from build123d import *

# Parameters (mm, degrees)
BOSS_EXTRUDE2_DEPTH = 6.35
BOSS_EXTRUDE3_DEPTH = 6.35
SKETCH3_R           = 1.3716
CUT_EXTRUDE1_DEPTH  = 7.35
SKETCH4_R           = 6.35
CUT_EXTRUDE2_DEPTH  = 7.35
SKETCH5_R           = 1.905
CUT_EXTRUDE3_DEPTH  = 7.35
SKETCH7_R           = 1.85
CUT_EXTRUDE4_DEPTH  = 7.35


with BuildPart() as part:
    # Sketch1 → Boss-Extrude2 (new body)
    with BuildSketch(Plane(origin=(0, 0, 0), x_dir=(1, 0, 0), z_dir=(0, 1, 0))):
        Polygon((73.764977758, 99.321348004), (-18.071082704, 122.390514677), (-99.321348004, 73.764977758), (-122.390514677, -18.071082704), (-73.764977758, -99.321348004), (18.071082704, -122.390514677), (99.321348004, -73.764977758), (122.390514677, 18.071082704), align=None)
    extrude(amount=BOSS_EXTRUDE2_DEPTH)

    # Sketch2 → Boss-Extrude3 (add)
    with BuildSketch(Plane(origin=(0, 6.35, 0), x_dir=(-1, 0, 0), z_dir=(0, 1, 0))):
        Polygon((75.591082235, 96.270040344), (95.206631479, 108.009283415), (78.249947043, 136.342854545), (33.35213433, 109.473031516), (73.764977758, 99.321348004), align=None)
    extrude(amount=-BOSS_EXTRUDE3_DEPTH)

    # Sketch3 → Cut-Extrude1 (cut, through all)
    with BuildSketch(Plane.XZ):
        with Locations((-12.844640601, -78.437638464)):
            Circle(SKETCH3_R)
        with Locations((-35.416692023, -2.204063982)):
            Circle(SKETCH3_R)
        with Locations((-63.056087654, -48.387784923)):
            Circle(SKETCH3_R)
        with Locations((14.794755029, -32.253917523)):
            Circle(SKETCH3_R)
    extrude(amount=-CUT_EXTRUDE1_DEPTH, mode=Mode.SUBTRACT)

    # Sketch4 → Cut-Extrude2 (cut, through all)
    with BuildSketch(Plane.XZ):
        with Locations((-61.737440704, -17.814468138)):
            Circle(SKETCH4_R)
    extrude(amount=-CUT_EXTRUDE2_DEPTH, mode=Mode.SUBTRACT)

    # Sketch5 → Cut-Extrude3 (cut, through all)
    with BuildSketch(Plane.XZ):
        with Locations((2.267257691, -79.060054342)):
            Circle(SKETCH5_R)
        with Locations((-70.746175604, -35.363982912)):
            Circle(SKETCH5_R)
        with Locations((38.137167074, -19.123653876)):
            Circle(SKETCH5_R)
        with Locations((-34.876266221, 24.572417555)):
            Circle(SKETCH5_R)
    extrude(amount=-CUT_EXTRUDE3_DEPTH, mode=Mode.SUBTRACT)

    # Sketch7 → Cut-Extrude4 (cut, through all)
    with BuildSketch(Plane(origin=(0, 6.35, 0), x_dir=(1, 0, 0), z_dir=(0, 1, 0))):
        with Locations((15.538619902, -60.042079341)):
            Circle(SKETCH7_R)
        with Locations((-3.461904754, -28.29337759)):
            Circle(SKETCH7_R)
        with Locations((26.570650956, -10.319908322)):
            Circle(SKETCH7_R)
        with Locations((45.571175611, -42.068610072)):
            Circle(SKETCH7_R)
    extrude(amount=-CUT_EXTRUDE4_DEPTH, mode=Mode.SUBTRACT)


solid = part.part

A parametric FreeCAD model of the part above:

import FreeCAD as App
import Part
import Sketcher

V = App.Vector
Q = App.Units.Quantity


def add_polygon(sketch, points):
    """Adds a closed chain of lines whose ends are joined by coincident constraints."""
    first, n = sketch.GeometryCount, len(points)
    for a, b in zip(points, points[1:] + points[:1]):
        sketch.addGeometry(Part.LineSegment(App.Vector(*a, 0), App.Vector(*b, 0)), False)
    for i in range(n):
        sketch.addConstraint(Sketcher.Constraint("Coincident", first + i, 2, first + (i + 1) % n, 1))

doc = App.newDocument("Part")
body = doc.addObject("PartDesign::Body", "Body")

# Sketch on XZ plane
sketch1 = doc.addObject("Sketcher::SketchObject", "Sketch")
body.addObject(sketch1)
sketch1.AttachmentSupport = (doc.XZ_Plane, [""])
sketch1.MapMode = "FlatFace"
add_polygon(sketch1, [(74, -99), (-18, -122), (-99, -74), (-122, 18), (-74, 99), (18, 122), (99, 74), (122, -18)])  # lines 0-7
sketch1.addConstraint(Sketcher.Constraint("Symmetric", 0, 2, 4, 2, -1, 1))
sketch1.addConstraint(Sketcher.Constraint("Symmetric", 1, 2, 5, 2, -1, 1))
sketch1.addConstraint(Sketcher.Constraint("Symmetric", 2, 2, 6, 2, -1, 1))
sketch1.addConstraint(Sketcher.Constraint("Symmetric", 3, 2, 7, 2, -1, 1))
sketch1.addConstraint(Sketcher.Constraint("Perpendicular", 0, 2))
sketch1.addConstraint(Sketcher.Constraint("Perpendicular", 1, 3))
sketch1.addConstraint(Sketcher.Constraint("Equal", 0, 1))
sketch1.addConstraint(Sketcher.Constraint("Equal", 1, 2))
sketch1.addConstraint(Sketcher.Constraint("Equal", 2, 3))
sketch1.addConstraint(Sketcher.Constraint("Distance", 0, Q("94.68922 mm")))
sketch1.addConstraint(Sketcher.Constraint("DistanceX", 1, 2, -1, 1, Q("99.321348 mm")))
sketch1.addConstraint(Sketcher.Constraint("DistanceY", 1, 2, 2, 2, Q("91.83606 mm")))
pad1 = doc.addObject("PartDesign::Pad", "Pad")
body.addObject(pad1)
pad1.Profile = sketch1
pad1.Length = Q("0.25 in")
pad1.Reversed = True

# Sketch on XZ plane
sketch2 = doc.addObject("Sketcher::SketchObject", "Sketch001")
body.addObject(sketch2)
sketch2.AttachmentSupport = (doc.XZ_Plane, [""])
sketch2.MapMode = "FlatFace"
sketch2.AttachmentOffset = App.Placement(V(0, 0, -0.25 * 25.4), App.Rotation())
add_polygon(sketch2, [(-75.6, 96.3), (-95.2, 108), (-78.2, 136.3), (-33.4, 109.5), (-73.8, 99.3)])  # lines 0-4
sketch2.addConstraint(Sketcher.Constraint("Perpendicular", 0, 1))
sketch2.addConstraint(Sketcher.Constraint("Perpendicular", 1, 2))
sketch2.addConstraint(Sketcher.Constraint("Perpendicular", 2, 4))
sketch2.addConstraint(Sketcher.Constraint("Distance", 0, Q("0.9 in")))
sketch2.addConstraint(Sketcher.Constraint("Distance", 1, Q("1.3 in")))
sketch2.addConstraint(Sketcher.Constraint("Distance", 2, Q("2.06 in")))
sketch2.addConstraint(Sketcher.Constraint("Distance", 4, Q("0.14 in")))
sketch2.addConstraint(Sketcher.Constraint("DistanceX", 0, 2, -1, 1, Q("95.206631 mm")))
sketch2.addConstraint(Sketcher.Constraint("DistanceY", -1, 1, 2, 2, Q("109.473032 mm")))
sketch2.addConstraint(Sketcher.Constraint("DistanceY", -1, 1, 3, 2, Q("99.321348 mm")))
pad2 = doc.addObject("PartDesign::Pad", "Pad001")
body.addObject(pad2)
pad2.Profile = sketch2
pad2.Length = Q("0.25 in")

# Sketch on XZ plane
sketch3 = doc.addObject("Sketcher::SketchObject", "Sketch002")
body.addObject(sketch3)
sketch3.AttachmentSupport = (doc.XZ_Plane, [""])
sketch3.MapMode = "FlatFace"
sketch3.addGeometry(Part.Circle(V(-12.8, -78.4, 0), V(0, 0, 1), 1.4), False)
sketch3.addGeometry(Part.Circle(V(-35.4, -2.2, 0), V(0, 0, 1), 1.4), False)
sketch3.addGeometry(Part.Circle(V(-63.1, -48.4, 0), V(0, 0, 1), 1.4), False)
sketch3.addGeometry(Part.Circle(V(14.8, -32.3, 0), V(0, 0, 1), 1.4), False)
sketch3.addConstraint(Sketcher.Constraint("Equal", 0, 1))
sketch3.addConstraint(Sketcher.Constraint("Equal", 1, 2))
sketch3.addConstraint(Sketcher.Constraint("Equal", 2, 3))
sketch3.addConstraint(Sketcher.Constraint("Diameter", 0, Q("0.108 in")))
sketch3.addConstraint(Sketcher.Constraint("DistanceX", 0, 3, -1, 1, Q("12.844641 mm")))
sketch3.addConstraint(Sketcher.Constraint("DistanceY", 0, 3, -1, 1, Q("78.437638 mm")))
sketch3.addConstraint(Sketcher.Constraint("DistanceX", 1, 3, 0, 3, Q("22.572051 mm")))
sketch3.addConstraint(Sketcher.Constraint("DistanceY", 2, 3, 1, 3, Q("46.183721 mm")))
sketch3.addConstraint(Sketcher.Constraint("DistanceY", 0, 3, 3, 3, Q("46.183721 mm")))
sketch3.addConstraint(Sketcher.Constraint("DistanceY", 1, 3, -1, 1, Q("2.204064 mm")))
sketch3.addConstraint(Sketcher.Constraint("DistanceX", 2, 3, -1, 1, Q("63.056088 mm")))
sketch3.addConstraint(Sketcher.Constraint("DistanceX", -1, 1, 3, 3, Q("14.794755 mm")))
pocket1 = doc.addObject("PartDesign::Pocket", "Pocket")
body.addObject(pocket1)
pocket1.Profile = sketch3
pocket1.Type = "ThroughAll"

# Sketch on XZ plane
sketch4 = doc.addObject("Sketcher::SketchObject", "Sketch003")
body.addObject(sketch4)
sketch4.AttachmentSupport = (doc.XZ_Plane, [""])
sketch4.MapMode = "FlatFace"
sketch4.addGeometry(Part.Circle(V(-62, -18, 0), V(0, 0, 1), 6), False)
sketch4.addConstraint(Sketcher.Constraint("Diameter", 0, Q("0.5 in")))
sketch4.addConstraint(Sketcher.Constraint("DistanceX", 0, 3, -1, 1, Q("61.737441 mm")))
sketch4.addConstraint(Sketcher.Constraint("DistanceY", 0, 3, -1, 1, Q("17.814468 mm")))
pocket2 = doc.addObject("PartDesign::Pocket", "Pocket001")
body.addObject(pocket2)
pocket2.Profile = sketch4
pocket2.Type = "ThroughAll"

# Sketch on XZ plane
sketch5 = doc.addObject("Sketcher::SketchObject", "Sketch004")
body.addObject(sketch5)
sketch5.AttachmentSupport = (doc.XZ_Plane, [""])
sketch5.MapMode = "FlatFace"
sketch5.addGeometry(Part.Circle(V(2.3, -79.1, 0), V(0, 0, 1), 1.9), False)
sketch5.addGeometry(Part.Circle(V(-70.7, -35.4, 0), V(0, 0, 1), 1.9), False)
sketch5.addGeometry(Part.Circle(V(38.1, -19.1, 0), V(0, 0, 1), 1.9), False)
sketch5.addGeometry(Part.Circle(V(-34.9, 24.6, 0), V(0, 0, 1), 1.9), False)
sketch5.addConstraint(Sketcher.Constraint("Equal", 0, 1))
sketch5.addConstraint(Sketcher.Constraint("Equal", 1, 2))
sketch5.addConstraint(Sketcher.Constraint("Equal", 2, 3))
sketch5.addConstraint(Sketcher.Constraint("Diameter", 0, Q("0.15 in")))
sketch5.addConstraint(Sketcher.Constraint("DistanceY", 0, 3, 2, 3, Q("59.9364 mm")))
sketch5.addConstraint(Sketcher.Constraint("DistanceY", 1, 3, 3, 3, Q("59.9364 mm")))
sketch5.addConstraint(Sketcher.Constraint("DistanceY", 0, 3, 1, 3, Q("43.696071 mm")))
sketch5.addConstraint(Sketcher.Constraint("DistanceX", 0, 3, 2, 3, Q("35.869909 mm")))
sketch5.addConstraint(Sketcher.Constraint("DistanceX", 1, 3, 3, 3, Q("35.869909 mm")))
sketch5.addConstraint(Sketcher.Constraint("DistanceX", -1, 1, 0, 3, Q("2.267258 mm")))
sketch5.addConstraint(Sketcher.Constraint("DistanceY", 0, 3, -1, 1, Q("79.060054 mm")))
sketch5.addConstraint(Sketcher.Constraint("DistanceX", 1, 3, -1, 1, Q("70.746176 mm")))
pocket3 = doc.addObject("PartDesign::Pocket", "Pocket002")
body.addObject(pocket3)
pocket3.Profile = sketch5
pocket3.Type = "ThroughAll"

# Sketch on XZ plane
sketch6 = doc.addObject("Sketcher::SketchObject", "Sketch005")
body.addObject(sketch6)
sketch6.AttachmentSupport = (doc.XZ_Plane, [""])
sketch6.MapMode = "FlatFace"
sketch6.AttachmentOffset = App.Placement(V(0, 0, -0.25 * 25.4), App.Rotation())
sketch6.addGeometry(Part.Circle(V(15.5, 60, 0), V(0, 0, 1), 1.9), False)
sketch6.addGeometry(Part.Circle(V(-3.5, 28.3, 0), V(0, 0, 1), 1.9), False)
sketch6.addGeometry(Part.Circle(V(26.6, 10.3, 0), V(0, 0, 1), 1.9), False)
sketch6.addGeometry(Part.Circle(V(45.6, 42.1, 0), V(0, 0, 1), 1.9), False)
sketch6.addConstraint(Sketcher.Constraint("Equal", 0, 1))
sketch6.addConstraint(Sketcher.Constraint("Equal", 1, 2))
sketch6.addConstraint(Sketcher.Constraint("Equal", 2, 3))
sketch6.addConstraint(Sketcher.Constraint("Diameter", 0, Q("3.7 mm")))
sketch6.addConstraint(Sketcher.Constraint("DistanceY", 1, 3, 0, 3, Q("31.748702 mm")))
sketch6.addConstraint(Sketcher.Constraint("DistanceY", 2, 3, 3, 3, Q("31.748702 mm")))
sketch6.addConstraint(Sketcher.Constraint("DistanceX", -1, 1, 0, 3, Q("15.53862 mm")))
sketch6.addConstraint(Sketcher.Constraint("DistanceY", -1, 1, 0, 3, Q("60.042079 mm")))
sketch6.addConstraint(Sketcher.Constraint("DistanceX", -1, 1, 2, 3, Q("26.570651 mm")))
sketch6.addConstraint(Sketcher.Constraint("DistanceY", -1, 1, 2, 3, Q("10.319908 mm")))
sketch6.addConstraint(Sketcher.Constraint("DistanceX", 1, 3, 3, 3, Q("49.03308 mm")))
sketch6.addConstraint(Sketcher.Constraint("DistanceX", 1, 3, -1, 1, Q("3.461905 mm")))
pocket4 = doc.addObject("PartDesign::Pocket", "Pocket003")
body.addObject(pocket4)
pocket4.Profile = sketch6
pocket4.Type = "ThroughAll"
pocket4.Reversed = True

doc.recompute()
